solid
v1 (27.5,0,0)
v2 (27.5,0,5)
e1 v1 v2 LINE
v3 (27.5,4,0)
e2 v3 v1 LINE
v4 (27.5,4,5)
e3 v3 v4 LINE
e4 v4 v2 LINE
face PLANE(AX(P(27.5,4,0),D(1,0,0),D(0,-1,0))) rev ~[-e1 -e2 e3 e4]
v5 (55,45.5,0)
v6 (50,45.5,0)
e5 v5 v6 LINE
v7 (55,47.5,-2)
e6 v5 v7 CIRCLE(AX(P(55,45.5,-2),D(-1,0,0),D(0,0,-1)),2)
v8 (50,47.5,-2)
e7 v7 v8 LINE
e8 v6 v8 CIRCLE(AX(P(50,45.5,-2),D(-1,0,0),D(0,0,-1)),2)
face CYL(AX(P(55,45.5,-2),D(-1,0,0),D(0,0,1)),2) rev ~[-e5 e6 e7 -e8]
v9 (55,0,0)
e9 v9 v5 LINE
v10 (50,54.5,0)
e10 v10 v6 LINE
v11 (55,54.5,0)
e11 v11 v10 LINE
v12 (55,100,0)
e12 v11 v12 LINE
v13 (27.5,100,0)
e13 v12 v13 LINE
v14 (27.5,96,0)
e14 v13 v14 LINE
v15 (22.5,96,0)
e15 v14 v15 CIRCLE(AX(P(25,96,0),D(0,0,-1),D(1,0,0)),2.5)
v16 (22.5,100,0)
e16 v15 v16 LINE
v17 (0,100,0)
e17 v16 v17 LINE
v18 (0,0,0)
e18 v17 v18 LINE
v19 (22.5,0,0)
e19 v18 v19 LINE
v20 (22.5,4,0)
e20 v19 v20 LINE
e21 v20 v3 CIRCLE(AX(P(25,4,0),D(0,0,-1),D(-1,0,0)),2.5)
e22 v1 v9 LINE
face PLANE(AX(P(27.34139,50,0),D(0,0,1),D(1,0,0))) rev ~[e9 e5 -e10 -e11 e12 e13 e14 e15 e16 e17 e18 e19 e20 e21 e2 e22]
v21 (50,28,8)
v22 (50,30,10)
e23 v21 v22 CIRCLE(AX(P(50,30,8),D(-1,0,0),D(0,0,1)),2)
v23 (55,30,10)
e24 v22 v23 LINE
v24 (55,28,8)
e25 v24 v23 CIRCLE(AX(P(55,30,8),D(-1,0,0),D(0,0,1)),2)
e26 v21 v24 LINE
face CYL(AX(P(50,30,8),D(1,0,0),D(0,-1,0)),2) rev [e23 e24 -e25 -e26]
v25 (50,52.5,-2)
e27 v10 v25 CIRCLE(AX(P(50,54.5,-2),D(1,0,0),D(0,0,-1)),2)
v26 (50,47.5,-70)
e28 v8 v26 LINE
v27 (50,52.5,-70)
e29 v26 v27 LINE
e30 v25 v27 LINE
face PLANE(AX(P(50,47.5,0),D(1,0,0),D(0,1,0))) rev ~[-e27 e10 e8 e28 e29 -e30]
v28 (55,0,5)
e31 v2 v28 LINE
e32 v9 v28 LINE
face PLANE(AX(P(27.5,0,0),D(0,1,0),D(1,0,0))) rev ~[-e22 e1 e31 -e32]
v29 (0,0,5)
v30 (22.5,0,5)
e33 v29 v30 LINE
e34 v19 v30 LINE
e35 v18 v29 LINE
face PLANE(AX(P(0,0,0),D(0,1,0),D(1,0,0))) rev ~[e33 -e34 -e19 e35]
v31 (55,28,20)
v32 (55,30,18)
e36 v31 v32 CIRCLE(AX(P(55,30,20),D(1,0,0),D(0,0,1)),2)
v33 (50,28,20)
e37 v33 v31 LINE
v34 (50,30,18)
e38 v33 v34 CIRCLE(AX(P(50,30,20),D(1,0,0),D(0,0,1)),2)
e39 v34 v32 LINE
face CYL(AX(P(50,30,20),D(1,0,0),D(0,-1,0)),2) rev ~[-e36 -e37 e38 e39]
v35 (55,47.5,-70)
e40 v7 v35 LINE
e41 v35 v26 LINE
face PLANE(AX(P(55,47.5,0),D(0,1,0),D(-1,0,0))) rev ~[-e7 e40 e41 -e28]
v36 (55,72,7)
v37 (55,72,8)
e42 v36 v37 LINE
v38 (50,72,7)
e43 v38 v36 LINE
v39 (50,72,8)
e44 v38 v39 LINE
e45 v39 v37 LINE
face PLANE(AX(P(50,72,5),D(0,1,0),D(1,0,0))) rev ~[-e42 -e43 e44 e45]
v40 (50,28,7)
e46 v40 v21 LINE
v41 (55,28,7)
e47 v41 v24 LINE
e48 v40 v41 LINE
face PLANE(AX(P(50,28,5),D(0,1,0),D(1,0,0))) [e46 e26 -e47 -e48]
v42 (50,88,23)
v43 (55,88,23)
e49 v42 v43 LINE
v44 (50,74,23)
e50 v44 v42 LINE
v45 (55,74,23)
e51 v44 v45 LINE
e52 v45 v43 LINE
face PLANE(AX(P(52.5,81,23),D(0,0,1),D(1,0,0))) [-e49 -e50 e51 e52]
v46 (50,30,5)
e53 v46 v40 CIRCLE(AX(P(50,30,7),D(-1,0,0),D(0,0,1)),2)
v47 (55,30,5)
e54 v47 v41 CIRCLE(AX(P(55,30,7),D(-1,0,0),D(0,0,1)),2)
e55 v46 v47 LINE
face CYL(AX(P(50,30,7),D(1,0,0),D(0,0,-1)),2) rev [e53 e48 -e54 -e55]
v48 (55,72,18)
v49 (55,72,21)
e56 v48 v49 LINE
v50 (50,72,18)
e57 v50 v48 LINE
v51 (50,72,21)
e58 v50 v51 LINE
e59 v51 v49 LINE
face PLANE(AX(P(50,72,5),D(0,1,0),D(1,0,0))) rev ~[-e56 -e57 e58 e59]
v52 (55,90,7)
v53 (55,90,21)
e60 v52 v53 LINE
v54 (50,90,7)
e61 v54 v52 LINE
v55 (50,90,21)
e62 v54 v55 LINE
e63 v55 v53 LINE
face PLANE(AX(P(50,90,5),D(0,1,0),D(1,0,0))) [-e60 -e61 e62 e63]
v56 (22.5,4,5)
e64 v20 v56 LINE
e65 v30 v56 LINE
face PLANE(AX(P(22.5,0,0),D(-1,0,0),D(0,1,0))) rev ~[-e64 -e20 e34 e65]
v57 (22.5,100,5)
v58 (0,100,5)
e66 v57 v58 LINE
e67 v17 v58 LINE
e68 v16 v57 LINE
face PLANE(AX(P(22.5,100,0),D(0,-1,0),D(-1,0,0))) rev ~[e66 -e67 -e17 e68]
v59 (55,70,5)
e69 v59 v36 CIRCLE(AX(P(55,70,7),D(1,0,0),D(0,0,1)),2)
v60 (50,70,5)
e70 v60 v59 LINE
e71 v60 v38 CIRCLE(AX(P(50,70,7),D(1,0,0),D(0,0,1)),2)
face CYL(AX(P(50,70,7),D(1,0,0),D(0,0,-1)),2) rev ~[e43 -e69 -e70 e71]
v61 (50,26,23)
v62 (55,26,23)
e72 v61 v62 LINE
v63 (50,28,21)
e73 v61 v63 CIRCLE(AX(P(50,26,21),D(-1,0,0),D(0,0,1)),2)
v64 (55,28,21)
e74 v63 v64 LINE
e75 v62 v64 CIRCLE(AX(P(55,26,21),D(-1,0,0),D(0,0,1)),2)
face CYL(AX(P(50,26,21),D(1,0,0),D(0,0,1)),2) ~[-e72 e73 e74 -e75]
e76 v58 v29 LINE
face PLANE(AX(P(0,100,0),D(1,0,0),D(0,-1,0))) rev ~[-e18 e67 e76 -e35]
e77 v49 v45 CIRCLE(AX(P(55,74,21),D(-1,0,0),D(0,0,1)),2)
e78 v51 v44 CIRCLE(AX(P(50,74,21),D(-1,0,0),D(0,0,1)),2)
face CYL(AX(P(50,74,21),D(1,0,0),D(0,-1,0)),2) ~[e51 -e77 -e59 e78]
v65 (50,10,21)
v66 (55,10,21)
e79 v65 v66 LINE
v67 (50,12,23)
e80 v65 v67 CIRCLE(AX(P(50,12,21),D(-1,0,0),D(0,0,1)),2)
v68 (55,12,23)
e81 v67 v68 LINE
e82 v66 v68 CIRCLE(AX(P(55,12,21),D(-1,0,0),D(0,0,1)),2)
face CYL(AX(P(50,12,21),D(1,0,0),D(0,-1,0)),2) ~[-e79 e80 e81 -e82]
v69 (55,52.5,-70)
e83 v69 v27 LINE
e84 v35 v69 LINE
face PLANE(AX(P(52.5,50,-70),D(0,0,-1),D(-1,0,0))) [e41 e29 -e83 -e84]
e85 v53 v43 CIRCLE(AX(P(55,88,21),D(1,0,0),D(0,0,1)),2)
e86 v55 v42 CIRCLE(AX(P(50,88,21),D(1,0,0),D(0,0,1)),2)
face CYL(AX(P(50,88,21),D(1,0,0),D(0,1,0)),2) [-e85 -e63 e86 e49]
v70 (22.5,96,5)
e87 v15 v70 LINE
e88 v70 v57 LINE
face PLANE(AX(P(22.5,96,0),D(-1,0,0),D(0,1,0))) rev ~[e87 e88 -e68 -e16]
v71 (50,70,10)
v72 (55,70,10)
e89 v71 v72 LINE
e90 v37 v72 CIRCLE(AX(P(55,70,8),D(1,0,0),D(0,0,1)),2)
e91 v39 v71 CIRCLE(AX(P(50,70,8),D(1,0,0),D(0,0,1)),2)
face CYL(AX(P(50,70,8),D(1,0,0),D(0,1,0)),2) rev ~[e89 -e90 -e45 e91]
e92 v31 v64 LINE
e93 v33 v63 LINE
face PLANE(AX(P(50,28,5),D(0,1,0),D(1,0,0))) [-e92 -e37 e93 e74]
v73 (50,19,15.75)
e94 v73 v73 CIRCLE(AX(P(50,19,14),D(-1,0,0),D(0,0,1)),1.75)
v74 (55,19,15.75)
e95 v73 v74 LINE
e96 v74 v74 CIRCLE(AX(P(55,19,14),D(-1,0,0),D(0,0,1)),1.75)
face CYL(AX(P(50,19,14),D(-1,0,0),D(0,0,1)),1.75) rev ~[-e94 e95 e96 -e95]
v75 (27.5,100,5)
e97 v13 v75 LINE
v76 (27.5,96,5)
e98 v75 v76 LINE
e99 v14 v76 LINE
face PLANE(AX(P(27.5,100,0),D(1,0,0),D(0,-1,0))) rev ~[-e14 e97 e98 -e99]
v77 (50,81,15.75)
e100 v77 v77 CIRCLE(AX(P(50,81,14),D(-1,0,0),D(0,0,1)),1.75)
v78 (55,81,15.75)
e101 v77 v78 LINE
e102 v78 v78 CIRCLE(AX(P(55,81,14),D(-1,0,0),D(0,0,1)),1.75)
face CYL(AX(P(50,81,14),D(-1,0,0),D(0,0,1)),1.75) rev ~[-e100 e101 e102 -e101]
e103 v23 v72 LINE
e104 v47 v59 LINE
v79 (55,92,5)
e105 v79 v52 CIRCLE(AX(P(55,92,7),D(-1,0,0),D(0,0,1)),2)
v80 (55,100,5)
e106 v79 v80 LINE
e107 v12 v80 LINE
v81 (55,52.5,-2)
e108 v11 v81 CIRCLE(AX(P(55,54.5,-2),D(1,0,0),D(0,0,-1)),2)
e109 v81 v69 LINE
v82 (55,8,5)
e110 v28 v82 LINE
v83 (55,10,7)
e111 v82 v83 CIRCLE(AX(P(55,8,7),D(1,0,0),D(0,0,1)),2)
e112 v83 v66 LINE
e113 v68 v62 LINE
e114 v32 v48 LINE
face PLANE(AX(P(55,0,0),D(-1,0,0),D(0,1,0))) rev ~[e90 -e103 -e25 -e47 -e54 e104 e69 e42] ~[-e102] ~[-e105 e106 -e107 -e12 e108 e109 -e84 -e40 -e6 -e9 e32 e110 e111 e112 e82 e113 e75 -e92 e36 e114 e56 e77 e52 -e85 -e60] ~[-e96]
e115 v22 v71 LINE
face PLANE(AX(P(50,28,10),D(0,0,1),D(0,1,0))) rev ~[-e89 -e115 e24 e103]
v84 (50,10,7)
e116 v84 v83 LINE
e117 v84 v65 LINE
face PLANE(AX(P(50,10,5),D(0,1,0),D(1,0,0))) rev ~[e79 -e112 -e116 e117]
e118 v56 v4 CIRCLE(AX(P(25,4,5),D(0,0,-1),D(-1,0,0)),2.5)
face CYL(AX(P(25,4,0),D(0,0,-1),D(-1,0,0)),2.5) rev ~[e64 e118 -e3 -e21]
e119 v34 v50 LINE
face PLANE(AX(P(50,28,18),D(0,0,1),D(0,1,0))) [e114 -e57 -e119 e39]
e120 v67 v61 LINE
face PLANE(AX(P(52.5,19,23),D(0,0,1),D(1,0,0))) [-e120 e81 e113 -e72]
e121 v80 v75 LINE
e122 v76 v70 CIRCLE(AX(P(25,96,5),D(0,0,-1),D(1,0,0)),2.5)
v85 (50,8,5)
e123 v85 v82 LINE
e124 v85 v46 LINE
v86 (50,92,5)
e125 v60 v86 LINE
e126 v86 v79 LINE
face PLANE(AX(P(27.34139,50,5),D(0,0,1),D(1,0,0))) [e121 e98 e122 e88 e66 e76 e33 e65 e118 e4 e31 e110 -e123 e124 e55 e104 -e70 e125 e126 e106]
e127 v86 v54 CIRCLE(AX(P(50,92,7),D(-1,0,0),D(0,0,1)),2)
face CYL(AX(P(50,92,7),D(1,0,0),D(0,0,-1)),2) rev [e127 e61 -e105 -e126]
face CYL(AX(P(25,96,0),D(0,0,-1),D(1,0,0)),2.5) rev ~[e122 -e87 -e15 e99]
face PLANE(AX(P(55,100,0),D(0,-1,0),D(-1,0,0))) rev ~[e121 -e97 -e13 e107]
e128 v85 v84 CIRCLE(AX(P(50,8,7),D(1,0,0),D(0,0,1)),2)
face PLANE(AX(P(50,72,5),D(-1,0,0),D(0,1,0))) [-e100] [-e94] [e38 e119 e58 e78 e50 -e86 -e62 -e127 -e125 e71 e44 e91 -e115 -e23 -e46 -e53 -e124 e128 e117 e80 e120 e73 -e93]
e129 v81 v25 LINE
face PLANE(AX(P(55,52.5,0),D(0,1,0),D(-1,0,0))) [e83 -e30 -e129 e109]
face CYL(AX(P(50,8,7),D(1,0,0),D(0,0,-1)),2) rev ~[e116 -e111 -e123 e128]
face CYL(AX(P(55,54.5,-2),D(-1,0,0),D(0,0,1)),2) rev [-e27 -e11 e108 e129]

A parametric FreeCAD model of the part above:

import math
import FreeCAD as App
import Part
import Sketcher
Q = App.Units.Quantity


def edges_at(feature, points):
    """Names of the edges that pass closest to the given points."""
    edges = feature.Shape.Edges
    near = lambda p: min(range(len(edges)), key=lambda i: edges[i].distToShape(Part.Vertex(*p))[0])
    return sorted({f"Edge{near(p) + 1}" for p in points})


def add_polygon(sketch, points):
    """Adds a closed chain of lines whose ends are joined by coincident constraints."""
    first, n = sketch.GeometryCount, len(points)
    for a, b in zip(points, points[1:] + points[:1]):
        sketch.addGeometry(Part.LineSegment(App.Vector(*a, 0), App.Vector(*b, 0)), False)
    for i in range(n):
        sketch.addConstraint(Sketcher.Constraint("Coincident", first + i, 2, first + (i + 1) % n, 1))

doc = App.newDocument("Part")
body = doc.addObject("PartDesign::Body", "Body")

# Sketch on XY plane
sketch1 = body.newObject("Sketcher::SketchObject", "Sketch")
sketch1.AttachmentSupport = (doc.getObject("XY_Plane"), [""])
sketch1.MapMode = "FlatFace"
sketch1.addGeometry([
    Part.LineSegment(App.Vector(22.5, 100, 0), App.Vector(0, 100, 0)),  # 0
    Part.LineSegment(App.Vector(0, 100, 0), App.Vector(0, 0, 0)),  # 1
    Part.LineSegment(App.Vector(0, 0, 0), App.Vector(22.5, 0, 0)),  # 2
    Part.LineSegment(App.Vector(22.5, 0, 0), App.Vector(22.5, 4, 0)),  # 3
    Part.ArcOfCircle(Part.Circle(App.Vector(25, 4, 0), App.Vector(0, 0, 1), 2.5), math.radians(0), math.radians(180)),  # 4
    Part.LineSegment(App.Vector(27.5, 4, 0), App.Vector(27.5, 0, 0)),  # 5
    Part.LineSegment(App.Vector(27.5, 0, 0), App.Vector(55, 0, 0)),  # 6
    Part.LineSegment(App.Vector(55, 0, 0), App.Vector(55, 100, 0)),  # 7
    Part.LineSegment(App.Vector(55, 100, 0), App.Vector(27.5, 100, 0)),  # 8
    Part.LineSegment(App.Vector(27.5, 100, 0), App.Vector(27.5, 96, 0)),  # 9
    Part.ArcOfCircle(Part.Circle(App.Vector(25, 96, 0), App.Vector(0, 0, 1), 2.5), math.radians(180), math.radians(360)),  # 10
    Part.LineSegment(App.Vector(22.5, 96, 0), App.Vector(22.5, 100, 0)),  # 11
], False)
sketch1.addConstraint([
    Sketcher.Constraint("Coincident", 0, 2, 1, 1),
    Sketcher.Constraint("Coincident", 1, 2, 2, 1),
    Sketcher.Constraint("Coincident", 2, 2, 3, 1),
    Sketcher.Constraint("Tangent", 3, 2, 4, 2),
    Sketcher.Constraint("Tangent", 4, 1, 5, 1),
    Sketcher.Constraint("Coincident", 5, 2, 6, 1),
    Sketcher.Constraint("Coincident", 6, 2, 7, 1),
    Sketcher.Constraint("Coincident", 7, 2, 8, 1),
    Sketcher.Constraint("Coincident", 8, 2, 9, 1),
    Sketcher.Constraint("Tangent", 9, 2, 10, 2),
    Sketcher.Constraint("Tangent", 10, 1, 11, 1),
    Sketcher.Constraint("Coincident", 11, 2, 0, 1),
    Sketcher.Constraint("Horizontal", 0),
    Sketcher.Constraint("Vertical", 1),
    Sketcher.Constraint("Horizontal", 2),
    Sketcher.Constraint("Vertical", 3),
    Sketcher.Constraint("Vertical", 5),
    Sketcher.Constraint("Horizontal", 6),
    Sketcher.Constraint("Vertical", 7),
    Sketcher.Constraint("Horizontal", 8),
    Sketcher.Constraint("Vertical", 9),
    Sketcher.Constraint("Vertical", 11),
    Sketcher.Constraint("Coincident", 1, 2, -1, 1),
    Sketcher.Constraint("Equal", 4, 10),
    Sketcher.Constraint("PointOnObject", 5, 2, -1),
    Sketcher.Constraint("Horizontal", 0, 2, 7, 2),
    Sketcher.Constraint("Vertical", 4, 3, 10, 3),
    Sketcher.Constraint("Equal", 5, 9),
    Sketcher.Constraint("Radius", 4, Q("2.5 mm")),
    Sketcher.Constraint("DistanceY", 1, 2, 1, 1, Q("100 mm")),
    Sketcher.Constraint("DistanceY", 3, 1, 3, 2, Q("4 mm")),
    Sketcher.Constraint("DistanceX", 0, 2, 0, 1, Q("22.5 mm")),
    Sketcher.Constraint("DistanceX", 6, 1, 6, 2, Q("27.5 mm")),
])
pad1 = body.newObject("PartDesign::Pad", "Pad")
pad1.Profile = sketch1
pad1.Length = 5

# Sketch on XY plane
sketch2 = body.newObject("Sketcher::SketchObject", "Sketch001")
sketch2.AttachmentSupport = (doc.getObject("XY_Plane"), [""])
sketch2.MapMode = "FlatFace"
add_polygon(sketch2, [(55, 52.5), (55, 47.5), (50, 47.5), (50, 52.5)])  # lines 0-3
sketch2.addConstraint([
    Sketcher.Constraint("Vertical", 0),
    Sketcher.Constraint("Horizontal", 1),
    Sketcher.Constraint("Vertical", 2),
    Sketcher.Constraint("Horizontal", 3),
    Sketcher.Constraint("Equal", 3, 0),
    Sketcher.Constraint("DistanceX", 1, 2, 1, 1, Q("5 mm")),
    Sketcher.Constraint("DistanceX", -1, 1, 0, 2, Q("55 mm")),
    Sketcher.Constraint("DistanceY", -1, 1, 0, 2, Q("47.5 mm")),
])
pad2 = body.newObject("PartDesign::Pad", "Pad001")
pad2.Profile = sketch2
pad2.Length = 70
pad2.Reversed = True

# Sketch on XY plane
sketch3 = body.newObject("Sketcher::SketchObject", "Sketch002")
sketch3.AttachmentSupport = (doc.getObject("XY_Plane"), [""])
sketch3.MapMode = "FlatFace"
sketch3.AttachmentOffset = App.Placement(App.Vector(0, 0, 5), App.Rotation())
add_polygon(sketch3, [(50, 28), (50, 10), (55, 10), (55, 28)])  # lines 0-3
add_polygon(sketch3, [(50, 90), (50, 72), (55, 72), (55, 90)])  # lines 4-7
sketch3.addConstraint([
    Sketcher.Constraint("Vertical", 0),
    Sketcher.Constraint("Horizontal", 1),
    Sketcher.Constraint("Vertical", 2),
    Sketcher.Constraint("Horizontal", 3),
    Sketcher.Constraint("Vertical", 4),
    Sketcher.Constraint("Horizontal", 5),
    Sketcher.Constraint("Vertical", 6),
    Sketcher.Constraint("Horizontal", 7),
    Sketcher.Constraint("Vertical", 3, 2, 4, 2),
    Sketcher.Constraint("Vertical", 2, 2, 5, 2),
    Sketcher.Constraint("Equal", 2, 4),
    Sketcher.Constraint("DistanceX", 1, 1, 1, 2, Q("5 mm")),
    Sketcher.Constraint("DistanceY", 0, 2, 0, 1, Q("18 mm")),
    Sketcher.Constraint("DistanceX", -1, 1, 0, 2, Q("50 mm")),
    Sketcher.Constraint("DistanceY", -1, 1, 0, 2, Q("10 mm")),
    Sketcher.Constraint("DistanceY", -1, 1, 4, 2, Q("72 mm")),
])
pad3 = body.newObject("PartDesign::Pad", "Pad002")
pad3.Profile = sketch3
pad3.Length = 18

# Sketch on YZ plane
sketch4 = body.newObject("Sketcher::SketchObject", "Sketch003")
sketch4.AttachmentSupport = (doc.getObject("YZ_Plane"), [""])
sketch4.MapMode = "FlatFace"
sketch4.AttachmentOffset = App.Placement(App.Vector(0, 0, 50), App.Rotation())
sketch4.addGeometry([
    Part.Circle(App.Vector(19, 14, 0), App.Vector(0, 0, 1), 1.75),
    Part.Circle(App.Vector(81, 14, 0), App.Vector(0, 0, 1), 1.75),
], False)
sketch4.addConstraint([
    Sketcher.Constraint("Equal", 0, 1),
    Sketcher.Constraint("Horizontal", 0, 3, 1, 3),
    Sketcher.Constraint("Diameter", 0, Q("3.5 mm")),
    Sketcher.Constraint("DistanceX", -1, 1, 0, 3, Q("19 mm")),
    Sketcher.Constraint("DistanceY", -1, 1, 0, 3, Q("14 mm")),
    Sketcher.Constraint("DistanceX", -1, 1, 1, 3, Q("81 mm")),
])
pocket1 = body.newObject("PartDesign::Pocket", "Pocket")
pocket1.Profile = sketch4
pocket1.Type = "ThroughAll"
pocket1.Reversed = True

# Sketch on YZ plane
sketch5 = body.newObject("Sketcher::SketchObject", "Sketch004")
sketch5.AttachmentSupport = (doc.getObject("YZ_Plane"), [""])
sketch5.MapMode = "FlatFace"
sketch5.AttachmentOffset = App.Placement(App.Vector(0, 0, 50), App.Rotation())
add_polygon(sketch5, [(72, 10), (28, 10), (28, 18), (72, 18)])  # lines 0-3
sketch5.addConstraint([
    Sketcher.Constraint("Horizontal", 0),
    Sketcher.Constraint("Vertical", 1),
    Sketcher.Constraint("Horizontal", 2),
    Sketcher.Constraint("Vertical", 3),
    Sketcher.Constraint("DistanceX", 0, 2, 0, 1, Q("44 mm")),
    Sketcher.Constraint("DistanceY", 1, 1, 1, 2, Q("8 mm")),
    Sketcher.Constraint("DistanceX", -1, 1, 0, 2, Q("28 mm")),
    Sketcher.Constraint("DistanceY", -1, 1, 0, 2, Q("10 mm")),
])
pad4 = body.newObject("PartDesign::Pad", "Pad003")
pad4.Profile = sketch5
pad4.Length = 5
doc.recompute()

fillet = body.newObject("PartDesign::Fillet", "Fillet")
fillet.Base = (pad4, edges_at(pad4, [
    (52.5, 47.5, 0),
    (52.5, 52.5, 0),
    (52.5, 10, 5),
    (52.5, 28, 5),
    (52.5, 10, 23),
    (52.5, 28, 23),
    (52.5, 72, 5),
    (52.5, 90, 5),
    (52.5, 72, 23),
    (52.5, 90, 23),
    (52.5, 72, 10),
    (52.5, 28, 10),
    (52.5, 28, 18),
]))
fillet.Radius = 2

doc.recompute()
